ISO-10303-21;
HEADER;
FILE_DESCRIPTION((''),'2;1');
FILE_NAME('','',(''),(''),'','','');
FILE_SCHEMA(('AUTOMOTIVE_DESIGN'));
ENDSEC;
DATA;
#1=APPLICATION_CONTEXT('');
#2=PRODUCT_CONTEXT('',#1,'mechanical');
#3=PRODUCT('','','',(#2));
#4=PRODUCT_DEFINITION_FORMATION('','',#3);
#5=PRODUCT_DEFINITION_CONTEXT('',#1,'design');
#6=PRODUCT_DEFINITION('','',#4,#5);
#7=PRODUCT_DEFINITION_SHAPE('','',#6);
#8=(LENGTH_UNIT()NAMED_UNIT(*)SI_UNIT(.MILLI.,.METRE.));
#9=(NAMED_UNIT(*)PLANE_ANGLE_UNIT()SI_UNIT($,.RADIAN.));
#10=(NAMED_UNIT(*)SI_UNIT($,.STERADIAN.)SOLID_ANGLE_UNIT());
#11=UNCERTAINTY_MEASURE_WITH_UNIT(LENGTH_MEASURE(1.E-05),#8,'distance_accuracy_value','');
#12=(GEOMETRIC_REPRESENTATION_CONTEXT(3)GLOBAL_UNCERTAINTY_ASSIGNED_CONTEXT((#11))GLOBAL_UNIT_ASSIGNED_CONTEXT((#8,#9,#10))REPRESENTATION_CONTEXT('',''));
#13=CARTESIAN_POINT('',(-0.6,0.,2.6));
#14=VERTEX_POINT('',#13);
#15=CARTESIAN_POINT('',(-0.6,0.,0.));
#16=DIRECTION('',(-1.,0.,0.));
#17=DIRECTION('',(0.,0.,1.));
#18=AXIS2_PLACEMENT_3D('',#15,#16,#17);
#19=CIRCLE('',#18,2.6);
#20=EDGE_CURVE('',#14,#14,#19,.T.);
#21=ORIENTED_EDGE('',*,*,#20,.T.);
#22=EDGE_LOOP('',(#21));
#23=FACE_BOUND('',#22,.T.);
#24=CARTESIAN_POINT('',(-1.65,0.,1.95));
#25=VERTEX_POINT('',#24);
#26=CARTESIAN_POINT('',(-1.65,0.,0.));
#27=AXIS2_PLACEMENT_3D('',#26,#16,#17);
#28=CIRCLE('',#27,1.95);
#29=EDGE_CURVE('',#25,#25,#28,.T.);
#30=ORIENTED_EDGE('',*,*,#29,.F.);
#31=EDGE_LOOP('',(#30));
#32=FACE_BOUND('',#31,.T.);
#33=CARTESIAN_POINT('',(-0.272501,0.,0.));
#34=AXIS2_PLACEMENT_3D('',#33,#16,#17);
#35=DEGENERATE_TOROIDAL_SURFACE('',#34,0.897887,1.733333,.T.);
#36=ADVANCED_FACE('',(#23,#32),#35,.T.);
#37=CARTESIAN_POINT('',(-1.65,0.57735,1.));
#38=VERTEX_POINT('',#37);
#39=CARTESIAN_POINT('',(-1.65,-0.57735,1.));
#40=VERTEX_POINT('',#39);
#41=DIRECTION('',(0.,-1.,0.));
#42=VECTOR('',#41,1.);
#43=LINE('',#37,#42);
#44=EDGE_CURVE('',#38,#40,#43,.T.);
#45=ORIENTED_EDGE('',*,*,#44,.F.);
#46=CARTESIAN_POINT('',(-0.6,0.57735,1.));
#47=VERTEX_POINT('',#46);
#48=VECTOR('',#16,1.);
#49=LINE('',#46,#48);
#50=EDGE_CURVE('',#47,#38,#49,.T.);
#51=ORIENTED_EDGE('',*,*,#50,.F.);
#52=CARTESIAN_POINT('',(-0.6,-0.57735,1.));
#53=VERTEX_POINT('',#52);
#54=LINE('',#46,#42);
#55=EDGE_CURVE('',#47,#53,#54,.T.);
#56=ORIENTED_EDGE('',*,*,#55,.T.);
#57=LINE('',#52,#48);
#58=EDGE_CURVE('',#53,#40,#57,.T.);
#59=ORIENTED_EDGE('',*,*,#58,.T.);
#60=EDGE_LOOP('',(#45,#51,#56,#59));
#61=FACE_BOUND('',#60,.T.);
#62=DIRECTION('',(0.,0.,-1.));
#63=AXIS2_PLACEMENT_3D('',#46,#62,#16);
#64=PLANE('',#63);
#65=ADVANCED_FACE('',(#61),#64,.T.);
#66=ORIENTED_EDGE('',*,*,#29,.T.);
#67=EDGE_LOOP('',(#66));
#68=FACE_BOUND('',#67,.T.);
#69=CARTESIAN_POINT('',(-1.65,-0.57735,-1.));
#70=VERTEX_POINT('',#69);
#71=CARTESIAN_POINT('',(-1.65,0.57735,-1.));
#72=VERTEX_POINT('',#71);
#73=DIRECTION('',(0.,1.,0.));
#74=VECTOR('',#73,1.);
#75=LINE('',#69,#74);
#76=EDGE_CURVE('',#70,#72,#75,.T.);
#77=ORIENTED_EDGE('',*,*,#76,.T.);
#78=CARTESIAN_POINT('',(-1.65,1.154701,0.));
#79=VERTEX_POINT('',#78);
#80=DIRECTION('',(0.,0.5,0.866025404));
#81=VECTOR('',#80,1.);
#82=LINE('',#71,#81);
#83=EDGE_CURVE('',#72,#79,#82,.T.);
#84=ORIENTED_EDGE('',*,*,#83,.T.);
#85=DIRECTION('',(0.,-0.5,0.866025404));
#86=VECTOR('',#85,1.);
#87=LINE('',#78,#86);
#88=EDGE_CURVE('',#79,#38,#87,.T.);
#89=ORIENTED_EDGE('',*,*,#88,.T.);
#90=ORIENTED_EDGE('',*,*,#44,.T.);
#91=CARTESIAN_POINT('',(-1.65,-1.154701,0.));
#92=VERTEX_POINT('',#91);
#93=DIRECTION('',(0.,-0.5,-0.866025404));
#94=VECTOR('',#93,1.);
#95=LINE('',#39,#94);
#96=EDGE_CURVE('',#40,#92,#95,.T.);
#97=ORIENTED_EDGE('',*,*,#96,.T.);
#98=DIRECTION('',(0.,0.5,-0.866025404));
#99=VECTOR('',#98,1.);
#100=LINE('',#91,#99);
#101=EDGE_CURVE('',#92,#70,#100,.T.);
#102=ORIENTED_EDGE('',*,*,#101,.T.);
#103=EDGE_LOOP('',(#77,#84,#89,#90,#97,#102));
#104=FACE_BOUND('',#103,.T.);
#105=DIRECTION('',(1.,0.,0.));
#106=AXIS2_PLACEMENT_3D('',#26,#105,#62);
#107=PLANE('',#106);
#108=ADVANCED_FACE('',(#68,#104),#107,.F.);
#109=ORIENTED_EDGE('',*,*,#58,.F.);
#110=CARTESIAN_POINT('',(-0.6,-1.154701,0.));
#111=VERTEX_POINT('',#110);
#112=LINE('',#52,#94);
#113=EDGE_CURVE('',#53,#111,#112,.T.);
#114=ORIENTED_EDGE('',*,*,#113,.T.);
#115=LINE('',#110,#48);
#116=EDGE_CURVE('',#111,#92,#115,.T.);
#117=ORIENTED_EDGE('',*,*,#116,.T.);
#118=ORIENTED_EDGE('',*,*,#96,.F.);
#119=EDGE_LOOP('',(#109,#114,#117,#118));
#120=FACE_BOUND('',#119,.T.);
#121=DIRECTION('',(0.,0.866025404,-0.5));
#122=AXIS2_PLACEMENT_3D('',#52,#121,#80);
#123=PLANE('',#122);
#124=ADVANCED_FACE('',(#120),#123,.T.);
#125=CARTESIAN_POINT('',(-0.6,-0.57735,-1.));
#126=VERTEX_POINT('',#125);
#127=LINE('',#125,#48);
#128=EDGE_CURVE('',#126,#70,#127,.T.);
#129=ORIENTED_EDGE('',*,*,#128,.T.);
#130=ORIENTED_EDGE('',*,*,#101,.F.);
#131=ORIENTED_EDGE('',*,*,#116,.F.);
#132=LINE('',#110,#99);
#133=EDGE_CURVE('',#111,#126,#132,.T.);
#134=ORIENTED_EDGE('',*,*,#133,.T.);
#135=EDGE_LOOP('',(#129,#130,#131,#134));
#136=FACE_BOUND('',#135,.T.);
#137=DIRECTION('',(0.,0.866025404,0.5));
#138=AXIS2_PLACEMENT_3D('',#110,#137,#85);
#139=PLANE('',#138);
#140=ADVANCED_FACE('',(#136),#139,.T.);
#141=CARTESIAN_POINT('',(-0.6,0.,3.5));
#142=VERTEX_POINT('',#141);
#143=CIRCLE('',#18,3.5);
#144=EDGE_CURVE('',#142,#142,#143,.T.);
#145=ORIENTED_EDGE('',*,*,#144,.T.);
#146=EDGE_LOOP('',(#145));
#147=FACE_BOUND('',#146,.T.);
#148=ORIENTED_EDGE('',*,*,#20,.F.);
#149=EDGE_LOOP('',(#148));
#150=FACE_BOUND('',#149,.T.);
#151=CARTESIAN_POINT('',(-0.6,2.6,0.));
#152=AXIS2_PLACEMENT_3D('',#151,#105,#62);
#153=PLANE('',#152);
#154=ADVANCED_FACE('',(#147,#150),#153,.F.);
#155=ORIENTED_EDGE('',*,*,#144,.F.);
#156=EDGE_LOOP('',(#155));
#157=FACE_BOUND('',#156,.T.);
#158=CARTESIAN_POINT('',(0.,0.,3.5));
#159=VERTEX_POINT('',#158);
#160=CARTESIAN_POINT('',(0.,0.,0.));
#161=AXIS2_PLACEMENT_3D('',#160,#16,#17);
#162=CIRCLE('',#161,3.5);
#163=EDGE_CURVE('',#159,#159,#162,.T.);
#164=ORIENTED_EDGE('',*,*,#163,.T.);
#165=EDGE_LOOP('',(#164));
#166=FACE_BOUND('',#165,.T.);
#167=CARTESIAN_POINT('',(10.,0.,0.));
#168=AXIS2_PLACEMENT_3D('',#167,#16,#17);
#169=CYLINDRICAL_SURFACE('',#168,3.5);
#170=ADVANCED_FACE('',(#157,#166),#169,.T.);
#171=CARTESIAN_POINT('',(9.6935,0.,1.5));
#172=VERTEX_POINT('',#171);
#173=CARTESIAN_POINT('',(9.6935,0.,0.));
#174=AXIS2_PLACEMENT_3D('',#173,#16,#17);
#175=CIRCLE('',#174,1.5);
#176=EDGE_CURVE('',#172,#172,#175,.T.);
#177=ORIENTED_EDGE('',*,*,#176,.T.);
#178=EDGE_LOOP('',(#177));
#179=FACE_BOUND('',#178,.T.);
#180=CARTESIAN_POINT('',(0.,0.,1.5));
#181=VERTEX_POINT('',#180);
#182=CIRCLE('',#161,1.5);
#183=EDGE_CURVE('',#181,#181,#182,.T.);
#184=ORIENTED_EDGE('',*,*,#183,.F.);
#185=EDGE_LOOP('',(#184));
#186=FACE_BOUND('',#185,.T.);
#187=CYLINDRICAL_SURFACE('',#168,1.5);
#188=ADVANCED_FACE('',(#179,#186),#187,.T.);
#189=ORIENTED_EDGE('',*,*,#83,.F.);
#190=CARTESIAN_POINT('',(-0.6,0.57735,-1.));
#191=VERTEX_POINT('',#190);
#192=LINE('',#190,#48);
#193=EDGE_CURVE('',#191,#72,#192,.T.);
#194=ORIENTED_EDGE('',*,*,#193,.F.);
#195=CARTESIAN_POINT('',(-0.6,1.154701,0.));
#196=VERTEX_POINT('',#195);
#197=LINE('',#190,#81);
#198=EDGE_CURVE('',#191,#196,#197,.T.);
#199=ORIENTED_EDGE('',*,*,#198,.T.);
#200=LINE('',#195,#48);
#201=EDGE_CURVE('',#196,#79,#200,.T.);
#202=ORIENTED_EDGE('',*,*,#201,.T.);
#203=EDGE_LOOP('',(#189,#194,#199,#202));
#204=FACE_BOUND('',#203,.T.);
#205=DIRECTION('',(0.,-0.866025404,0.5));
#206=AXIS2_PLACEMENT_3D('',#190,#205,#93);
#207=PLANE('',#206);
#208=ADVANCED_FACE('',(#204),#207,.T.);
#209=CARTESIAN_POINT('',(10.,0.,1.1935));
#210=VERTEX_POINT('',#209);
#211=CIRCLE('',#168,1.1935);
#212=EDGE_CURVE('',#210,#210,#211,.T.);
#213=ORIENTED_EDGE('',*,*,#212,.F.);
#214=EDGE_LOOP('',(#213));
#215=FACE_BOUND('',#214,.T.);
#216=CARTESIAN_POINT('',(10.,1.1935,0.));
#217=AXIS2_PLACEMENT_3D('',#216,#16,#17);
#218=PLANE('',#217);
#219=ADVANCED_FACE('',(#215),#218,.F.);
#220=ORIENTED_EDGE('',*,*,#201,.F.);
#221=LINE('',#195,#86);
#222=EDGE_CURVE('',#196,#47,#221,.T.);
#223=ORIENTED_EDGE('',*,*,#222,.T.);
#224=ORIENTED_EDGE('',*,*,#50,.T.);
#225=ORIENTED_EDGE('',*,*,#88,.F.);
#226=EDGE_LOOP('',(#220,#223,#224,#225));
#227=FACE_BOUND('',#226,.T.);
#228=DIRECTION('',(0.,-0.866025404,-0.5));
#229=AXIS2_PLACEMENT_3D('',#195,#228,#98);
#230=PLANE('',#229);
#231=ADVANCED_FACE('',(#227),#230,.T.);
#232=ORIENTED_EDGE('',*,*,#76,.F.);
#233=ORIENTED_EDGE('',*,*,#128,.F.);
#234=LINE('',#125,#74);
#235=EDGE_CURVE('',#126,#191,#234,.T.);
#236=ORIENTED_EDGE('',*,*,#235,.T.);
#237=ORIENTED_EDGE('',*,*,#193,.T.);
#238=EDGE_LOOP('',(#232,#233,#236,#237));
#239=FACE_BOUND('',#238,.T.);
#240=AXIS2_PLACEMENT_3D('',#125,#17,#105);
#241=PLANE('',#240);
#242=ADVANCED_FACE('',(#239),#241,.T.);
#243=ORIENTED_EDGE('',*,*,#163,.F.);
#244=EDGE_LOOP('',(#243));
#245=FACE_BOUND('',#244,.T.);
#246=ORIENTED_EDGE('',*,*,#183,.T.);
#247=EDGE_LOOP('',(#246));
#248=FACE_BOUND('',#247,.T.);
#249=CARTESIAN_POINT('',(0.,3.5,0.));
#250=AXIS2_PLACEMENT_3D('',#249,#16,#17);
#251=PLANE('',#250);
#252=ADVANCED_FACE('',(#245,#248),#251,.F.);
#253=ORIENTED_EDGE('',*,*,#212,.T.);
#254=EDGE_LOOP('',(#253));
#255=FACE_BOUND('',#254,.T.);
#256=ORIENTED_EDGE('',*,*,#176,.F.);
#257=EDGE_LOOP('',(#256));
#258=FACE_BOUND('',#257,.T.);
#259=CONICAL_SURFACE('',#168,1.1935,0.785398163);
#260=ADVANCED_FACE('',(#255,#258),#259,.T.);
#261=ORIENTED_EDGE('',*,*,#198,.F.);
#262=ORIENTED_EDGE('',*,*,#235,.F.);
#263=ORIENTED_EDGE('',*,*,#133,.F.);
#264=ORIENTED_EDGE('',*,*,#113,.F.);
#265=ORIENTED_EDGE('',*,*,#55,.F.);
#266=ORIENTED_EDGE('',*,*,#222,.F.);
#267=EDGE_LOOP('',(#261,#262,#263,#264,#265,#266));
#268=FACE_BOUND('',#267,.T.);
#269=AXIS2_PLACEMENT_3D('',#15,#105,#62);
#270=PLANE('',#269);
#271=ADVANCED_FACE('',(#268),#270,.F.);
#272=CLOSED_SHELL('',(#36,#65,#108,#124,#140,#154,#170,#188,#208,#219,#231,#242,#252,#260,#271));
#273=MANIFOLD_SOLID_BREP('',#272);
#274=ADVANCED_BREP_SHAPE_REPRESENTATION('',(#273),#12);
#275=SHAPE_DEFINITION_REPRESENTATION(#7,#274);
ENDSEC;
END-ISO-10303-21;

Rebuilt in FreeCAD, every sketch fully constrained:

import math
import FreeCAD as App
import Part
import Sketcher
Q = App.Units.Quantity


def add_polygon(sketch, points):
    """Adds a closed chain of lines whose ends are joined by coincident constraints."""
    first, n = sketch.GeometryCount, len(points)
    for a, b in zip(points, points[1:] + points[:1]):
        sketch.addGeometry(Part.LineSegment(App.Vector(*a, 0), App.Vector(*b, 0)), False)
    for i in range(n):
        sketch.addConstraint(Sketcher.Constraint("Coincident", first + i, 2, first + (i + 1) % n, 1))

doc = App.newDocument("Part")
body = doc.addObject("PartDesign::Body", "Body")

# Sketch on XY plane
sketch1 = body.newObject("Sketcher::SketchObject", "Sketch")
sketch1.AttachmentSupport = (doc.getObject("XY_Plane"), [""])
sketch1.MapMode = "FlatFace"
sketch1.addGeometry([
    Part.LineSegment(App.Vector(-1.65, 1.95, 0), App.Vector(-1.65, 0, 0)),  # 0
    Part.LineSegment(App.Vector(-1.65, 0, 0), App.Vector(10, 0, 0)),  # 1
    Part.LineSegment(App.Vector(10, 0, 0), App.Vector(10, 1.19, 0)),  # 2
    Part.LineSegment(App.Vector(10, 1.19, 0), App.Vector(9.69, 1.5, 0)),  # 3
    Part.LineSegment(App.Vector(9.69, 1.5, 0), App.Vector(0, 1.5, 0)),  # 4
    Part.LineSegment(App.Vector(0, 1.5, 0), App.Vector(0, 3.5, 0)),  # 5
    Part.LineSegment(App.Vector(0, 3.5, 0), App.Vector(-0.6, 3.5, 0)),  # 6
    Part.LineSegment(App.Vector(-0.6, 3.5, 0), App.Vector(-0.6, 2.6, 0)),  # 7
    Part.ArcOfCircle(Part.Circle(App.Vector(-0.27, 0.9, 0), App.Vector(0, 0, 1), 1.73), math.radians(101), math.radians(143)),  # 8
], False)
sketch1.addConstraint([
    Sketcher.Constraint("Coincident", 0, 2, 1, 1),
    Sketcher.Constraint("Coincident", 1, 2, 2, 1),
    Sketcher.Constraint("Coincident", 2, 2, 3, 1),
    Sketcher.Constraint("Coincident", 3, 2, 4, 1),
    Sketcher.Constraint("Coincident", 4, 2, 5, 1),
    Sketcher.Constraint("Coincident", 5, 2, 6, 1),
    Sketcher.Constraint("Coincident", 6, 2, 7, 1),
    Sketcher.Constraint("Coincident", 7, 2, 8, 1),
    Sketcher.Constraint("Coincident", 8, 2, 0, 1),
    Sketcher.Constraint("Vertical", 0),
    Sketcher.Constraint("Horizontal", 1),
    Sketcher.Constraint("Vertical", 2),
    Sketcher.Constraint("Horizontal", 4),
    Sketcher.Constraint("Vertical", 5),
    Sketcher.Constraint("Horizontal", 6),
    Sketcher.Constraint("Vertical", 7),
    Sketcher.Constraint("PointOnObject", 0, 2, -1),
    Sketcher.Constraint("PointOnObject", 4, 2, -2),
    Sketcher.Constraint("DistanceY", 5, 1, 5, 2, Q("2 mm")),
    Sketcher.Constraint("Angle", 3, Q("135 deg")),
    Sketcher.Constraint("DistanceX", 6, 2, 6, 1, Q("0.6 mm")),
    Sketcher.Constraint("DistanceY", 7, 2, 7, 1, Q("0.9 mm")),
    Sketcher.Constraint("DistanceX", -1, 1, 1, 2, Q("10 mm")),
    Sketcher.Constraint("DistanceX", 1, 1, 1, 2, Q("11.65 mm")),
    Sketcher.Constraint("DistanceY", 0, 2, 0, 1, Q("1.95 mm")),
    Sketcher.Constraint("DistanceY", -1, 1, 3, 2, Q("1.5 mm")),
    Sketcher.Constraint("DistanceX", 4, 2, 4, 1, Q("9.6935 mm")),
    Sketcher.Constraint("Radius", 8, Q("1.733333 mm")),
])
revolution = body.newObject("PartDesign::Revolution", "Revolution")
revolution.Profile = sketch1
revolution.ReferenceAxis = (sketch1, ["H_Axis"])
revolution.Angle = 360

# Sketch on YZ plane
sketch2 = body.newObject("Sketcher::SketchObject", "Sketch001")
sketch2.AttachmentSupport = (doc.getObject("YZ_Plane"), [""])
sketch2.MapMode = "FlatFace"
sketch2.AttachmentOffset = App.Placement(App.Vector(0, 0, -1.65), App.Rotation())
add_polygon(sketch2, [(-0.6, 1), (-1.2, 0), (-0.6, -1), (0.6, -1), (1.2, 0), (0.6, 1)])  # lines 0-5
sketch2.addConstraint([
    Sketcher.Constraint("Horizontal", 2),
    Sketcher.Constraint("Horizontal", 5),
    Sketcher.Constraint("Symmetric", 0, 2, 3, 2, -1, 1),
    Sketcher.Constraint("Symmetric", 1, 2, 4, 2, -1, 1),
    Sketcher.Constraint("PointOnObject", 0, 2, -1),
    Sketcher.Constraint("Parallel", 0, 3),
    Sketcher.Constraint("Vertical", 2, 2, 4, 2),
    Sketcher.Constraint("Angle", 0, Q("-120 deg")),
    Sketcher.Constraint("DistanceY", 1, 2, -1, 1, Q("1 mm")),
    Sketcher.Constraint("DistanceX", 2, 1, 2, 2, Q("1.154701 mm")),
])
pocket1 = body.newObject("PartDesign::Pocket", "Pocket")
pocket1.Profile = sketch2
pocket1.Length = 1.05
pocket1.Reversed = True

doc.recompute()
